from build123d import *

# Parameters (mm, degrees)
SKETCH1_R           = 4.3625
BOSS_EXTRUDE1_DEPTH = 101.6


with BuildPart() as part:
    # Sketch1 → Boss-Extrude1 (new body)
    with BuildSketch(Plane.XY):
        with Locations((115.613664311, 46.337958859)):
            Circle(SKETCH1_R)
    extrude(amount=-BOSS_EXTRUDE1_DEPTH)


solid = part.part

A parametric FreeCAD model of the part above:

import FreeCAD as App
import Part
import Sketcher
from FreeCAD import Vector
Q = App.Units.Quantity

doc = App.newDocument("Part")
body = doc.addObject("PartDesign::Body", "Body")

sketch1 = doc.addObject("Sketcher::SketchObject", "Sketch")
body.addObject(sketch1)
sketch1.AttachmentSupport = (doc.XY_Plane, [""])
sketch1.MapMode = "FlatFace"
sketch1.addGeometry(Part.Circle(Vector(115.6, 46.3, 0), Vector(0, 0, 1), 4.4), False)
sketch1.addConstraint([
    Sketcher.Constraint("Diameter", 0, 8.725),
    Sketcher.Constraint("DistanceY", -1, 1, 0, 3, 46.337959),
    Sketcher.Constraint("DistanceX", -1, 1, 0, 3, 115.613664),
])
pad1 = doc.addObject("PartDesign::Pad", "Pad")
body.addObject(pad1)
pad1.Profile = sketch1
pad1.Length = Q("4 in")
pad1.Reversed = True

doc.recompute()
